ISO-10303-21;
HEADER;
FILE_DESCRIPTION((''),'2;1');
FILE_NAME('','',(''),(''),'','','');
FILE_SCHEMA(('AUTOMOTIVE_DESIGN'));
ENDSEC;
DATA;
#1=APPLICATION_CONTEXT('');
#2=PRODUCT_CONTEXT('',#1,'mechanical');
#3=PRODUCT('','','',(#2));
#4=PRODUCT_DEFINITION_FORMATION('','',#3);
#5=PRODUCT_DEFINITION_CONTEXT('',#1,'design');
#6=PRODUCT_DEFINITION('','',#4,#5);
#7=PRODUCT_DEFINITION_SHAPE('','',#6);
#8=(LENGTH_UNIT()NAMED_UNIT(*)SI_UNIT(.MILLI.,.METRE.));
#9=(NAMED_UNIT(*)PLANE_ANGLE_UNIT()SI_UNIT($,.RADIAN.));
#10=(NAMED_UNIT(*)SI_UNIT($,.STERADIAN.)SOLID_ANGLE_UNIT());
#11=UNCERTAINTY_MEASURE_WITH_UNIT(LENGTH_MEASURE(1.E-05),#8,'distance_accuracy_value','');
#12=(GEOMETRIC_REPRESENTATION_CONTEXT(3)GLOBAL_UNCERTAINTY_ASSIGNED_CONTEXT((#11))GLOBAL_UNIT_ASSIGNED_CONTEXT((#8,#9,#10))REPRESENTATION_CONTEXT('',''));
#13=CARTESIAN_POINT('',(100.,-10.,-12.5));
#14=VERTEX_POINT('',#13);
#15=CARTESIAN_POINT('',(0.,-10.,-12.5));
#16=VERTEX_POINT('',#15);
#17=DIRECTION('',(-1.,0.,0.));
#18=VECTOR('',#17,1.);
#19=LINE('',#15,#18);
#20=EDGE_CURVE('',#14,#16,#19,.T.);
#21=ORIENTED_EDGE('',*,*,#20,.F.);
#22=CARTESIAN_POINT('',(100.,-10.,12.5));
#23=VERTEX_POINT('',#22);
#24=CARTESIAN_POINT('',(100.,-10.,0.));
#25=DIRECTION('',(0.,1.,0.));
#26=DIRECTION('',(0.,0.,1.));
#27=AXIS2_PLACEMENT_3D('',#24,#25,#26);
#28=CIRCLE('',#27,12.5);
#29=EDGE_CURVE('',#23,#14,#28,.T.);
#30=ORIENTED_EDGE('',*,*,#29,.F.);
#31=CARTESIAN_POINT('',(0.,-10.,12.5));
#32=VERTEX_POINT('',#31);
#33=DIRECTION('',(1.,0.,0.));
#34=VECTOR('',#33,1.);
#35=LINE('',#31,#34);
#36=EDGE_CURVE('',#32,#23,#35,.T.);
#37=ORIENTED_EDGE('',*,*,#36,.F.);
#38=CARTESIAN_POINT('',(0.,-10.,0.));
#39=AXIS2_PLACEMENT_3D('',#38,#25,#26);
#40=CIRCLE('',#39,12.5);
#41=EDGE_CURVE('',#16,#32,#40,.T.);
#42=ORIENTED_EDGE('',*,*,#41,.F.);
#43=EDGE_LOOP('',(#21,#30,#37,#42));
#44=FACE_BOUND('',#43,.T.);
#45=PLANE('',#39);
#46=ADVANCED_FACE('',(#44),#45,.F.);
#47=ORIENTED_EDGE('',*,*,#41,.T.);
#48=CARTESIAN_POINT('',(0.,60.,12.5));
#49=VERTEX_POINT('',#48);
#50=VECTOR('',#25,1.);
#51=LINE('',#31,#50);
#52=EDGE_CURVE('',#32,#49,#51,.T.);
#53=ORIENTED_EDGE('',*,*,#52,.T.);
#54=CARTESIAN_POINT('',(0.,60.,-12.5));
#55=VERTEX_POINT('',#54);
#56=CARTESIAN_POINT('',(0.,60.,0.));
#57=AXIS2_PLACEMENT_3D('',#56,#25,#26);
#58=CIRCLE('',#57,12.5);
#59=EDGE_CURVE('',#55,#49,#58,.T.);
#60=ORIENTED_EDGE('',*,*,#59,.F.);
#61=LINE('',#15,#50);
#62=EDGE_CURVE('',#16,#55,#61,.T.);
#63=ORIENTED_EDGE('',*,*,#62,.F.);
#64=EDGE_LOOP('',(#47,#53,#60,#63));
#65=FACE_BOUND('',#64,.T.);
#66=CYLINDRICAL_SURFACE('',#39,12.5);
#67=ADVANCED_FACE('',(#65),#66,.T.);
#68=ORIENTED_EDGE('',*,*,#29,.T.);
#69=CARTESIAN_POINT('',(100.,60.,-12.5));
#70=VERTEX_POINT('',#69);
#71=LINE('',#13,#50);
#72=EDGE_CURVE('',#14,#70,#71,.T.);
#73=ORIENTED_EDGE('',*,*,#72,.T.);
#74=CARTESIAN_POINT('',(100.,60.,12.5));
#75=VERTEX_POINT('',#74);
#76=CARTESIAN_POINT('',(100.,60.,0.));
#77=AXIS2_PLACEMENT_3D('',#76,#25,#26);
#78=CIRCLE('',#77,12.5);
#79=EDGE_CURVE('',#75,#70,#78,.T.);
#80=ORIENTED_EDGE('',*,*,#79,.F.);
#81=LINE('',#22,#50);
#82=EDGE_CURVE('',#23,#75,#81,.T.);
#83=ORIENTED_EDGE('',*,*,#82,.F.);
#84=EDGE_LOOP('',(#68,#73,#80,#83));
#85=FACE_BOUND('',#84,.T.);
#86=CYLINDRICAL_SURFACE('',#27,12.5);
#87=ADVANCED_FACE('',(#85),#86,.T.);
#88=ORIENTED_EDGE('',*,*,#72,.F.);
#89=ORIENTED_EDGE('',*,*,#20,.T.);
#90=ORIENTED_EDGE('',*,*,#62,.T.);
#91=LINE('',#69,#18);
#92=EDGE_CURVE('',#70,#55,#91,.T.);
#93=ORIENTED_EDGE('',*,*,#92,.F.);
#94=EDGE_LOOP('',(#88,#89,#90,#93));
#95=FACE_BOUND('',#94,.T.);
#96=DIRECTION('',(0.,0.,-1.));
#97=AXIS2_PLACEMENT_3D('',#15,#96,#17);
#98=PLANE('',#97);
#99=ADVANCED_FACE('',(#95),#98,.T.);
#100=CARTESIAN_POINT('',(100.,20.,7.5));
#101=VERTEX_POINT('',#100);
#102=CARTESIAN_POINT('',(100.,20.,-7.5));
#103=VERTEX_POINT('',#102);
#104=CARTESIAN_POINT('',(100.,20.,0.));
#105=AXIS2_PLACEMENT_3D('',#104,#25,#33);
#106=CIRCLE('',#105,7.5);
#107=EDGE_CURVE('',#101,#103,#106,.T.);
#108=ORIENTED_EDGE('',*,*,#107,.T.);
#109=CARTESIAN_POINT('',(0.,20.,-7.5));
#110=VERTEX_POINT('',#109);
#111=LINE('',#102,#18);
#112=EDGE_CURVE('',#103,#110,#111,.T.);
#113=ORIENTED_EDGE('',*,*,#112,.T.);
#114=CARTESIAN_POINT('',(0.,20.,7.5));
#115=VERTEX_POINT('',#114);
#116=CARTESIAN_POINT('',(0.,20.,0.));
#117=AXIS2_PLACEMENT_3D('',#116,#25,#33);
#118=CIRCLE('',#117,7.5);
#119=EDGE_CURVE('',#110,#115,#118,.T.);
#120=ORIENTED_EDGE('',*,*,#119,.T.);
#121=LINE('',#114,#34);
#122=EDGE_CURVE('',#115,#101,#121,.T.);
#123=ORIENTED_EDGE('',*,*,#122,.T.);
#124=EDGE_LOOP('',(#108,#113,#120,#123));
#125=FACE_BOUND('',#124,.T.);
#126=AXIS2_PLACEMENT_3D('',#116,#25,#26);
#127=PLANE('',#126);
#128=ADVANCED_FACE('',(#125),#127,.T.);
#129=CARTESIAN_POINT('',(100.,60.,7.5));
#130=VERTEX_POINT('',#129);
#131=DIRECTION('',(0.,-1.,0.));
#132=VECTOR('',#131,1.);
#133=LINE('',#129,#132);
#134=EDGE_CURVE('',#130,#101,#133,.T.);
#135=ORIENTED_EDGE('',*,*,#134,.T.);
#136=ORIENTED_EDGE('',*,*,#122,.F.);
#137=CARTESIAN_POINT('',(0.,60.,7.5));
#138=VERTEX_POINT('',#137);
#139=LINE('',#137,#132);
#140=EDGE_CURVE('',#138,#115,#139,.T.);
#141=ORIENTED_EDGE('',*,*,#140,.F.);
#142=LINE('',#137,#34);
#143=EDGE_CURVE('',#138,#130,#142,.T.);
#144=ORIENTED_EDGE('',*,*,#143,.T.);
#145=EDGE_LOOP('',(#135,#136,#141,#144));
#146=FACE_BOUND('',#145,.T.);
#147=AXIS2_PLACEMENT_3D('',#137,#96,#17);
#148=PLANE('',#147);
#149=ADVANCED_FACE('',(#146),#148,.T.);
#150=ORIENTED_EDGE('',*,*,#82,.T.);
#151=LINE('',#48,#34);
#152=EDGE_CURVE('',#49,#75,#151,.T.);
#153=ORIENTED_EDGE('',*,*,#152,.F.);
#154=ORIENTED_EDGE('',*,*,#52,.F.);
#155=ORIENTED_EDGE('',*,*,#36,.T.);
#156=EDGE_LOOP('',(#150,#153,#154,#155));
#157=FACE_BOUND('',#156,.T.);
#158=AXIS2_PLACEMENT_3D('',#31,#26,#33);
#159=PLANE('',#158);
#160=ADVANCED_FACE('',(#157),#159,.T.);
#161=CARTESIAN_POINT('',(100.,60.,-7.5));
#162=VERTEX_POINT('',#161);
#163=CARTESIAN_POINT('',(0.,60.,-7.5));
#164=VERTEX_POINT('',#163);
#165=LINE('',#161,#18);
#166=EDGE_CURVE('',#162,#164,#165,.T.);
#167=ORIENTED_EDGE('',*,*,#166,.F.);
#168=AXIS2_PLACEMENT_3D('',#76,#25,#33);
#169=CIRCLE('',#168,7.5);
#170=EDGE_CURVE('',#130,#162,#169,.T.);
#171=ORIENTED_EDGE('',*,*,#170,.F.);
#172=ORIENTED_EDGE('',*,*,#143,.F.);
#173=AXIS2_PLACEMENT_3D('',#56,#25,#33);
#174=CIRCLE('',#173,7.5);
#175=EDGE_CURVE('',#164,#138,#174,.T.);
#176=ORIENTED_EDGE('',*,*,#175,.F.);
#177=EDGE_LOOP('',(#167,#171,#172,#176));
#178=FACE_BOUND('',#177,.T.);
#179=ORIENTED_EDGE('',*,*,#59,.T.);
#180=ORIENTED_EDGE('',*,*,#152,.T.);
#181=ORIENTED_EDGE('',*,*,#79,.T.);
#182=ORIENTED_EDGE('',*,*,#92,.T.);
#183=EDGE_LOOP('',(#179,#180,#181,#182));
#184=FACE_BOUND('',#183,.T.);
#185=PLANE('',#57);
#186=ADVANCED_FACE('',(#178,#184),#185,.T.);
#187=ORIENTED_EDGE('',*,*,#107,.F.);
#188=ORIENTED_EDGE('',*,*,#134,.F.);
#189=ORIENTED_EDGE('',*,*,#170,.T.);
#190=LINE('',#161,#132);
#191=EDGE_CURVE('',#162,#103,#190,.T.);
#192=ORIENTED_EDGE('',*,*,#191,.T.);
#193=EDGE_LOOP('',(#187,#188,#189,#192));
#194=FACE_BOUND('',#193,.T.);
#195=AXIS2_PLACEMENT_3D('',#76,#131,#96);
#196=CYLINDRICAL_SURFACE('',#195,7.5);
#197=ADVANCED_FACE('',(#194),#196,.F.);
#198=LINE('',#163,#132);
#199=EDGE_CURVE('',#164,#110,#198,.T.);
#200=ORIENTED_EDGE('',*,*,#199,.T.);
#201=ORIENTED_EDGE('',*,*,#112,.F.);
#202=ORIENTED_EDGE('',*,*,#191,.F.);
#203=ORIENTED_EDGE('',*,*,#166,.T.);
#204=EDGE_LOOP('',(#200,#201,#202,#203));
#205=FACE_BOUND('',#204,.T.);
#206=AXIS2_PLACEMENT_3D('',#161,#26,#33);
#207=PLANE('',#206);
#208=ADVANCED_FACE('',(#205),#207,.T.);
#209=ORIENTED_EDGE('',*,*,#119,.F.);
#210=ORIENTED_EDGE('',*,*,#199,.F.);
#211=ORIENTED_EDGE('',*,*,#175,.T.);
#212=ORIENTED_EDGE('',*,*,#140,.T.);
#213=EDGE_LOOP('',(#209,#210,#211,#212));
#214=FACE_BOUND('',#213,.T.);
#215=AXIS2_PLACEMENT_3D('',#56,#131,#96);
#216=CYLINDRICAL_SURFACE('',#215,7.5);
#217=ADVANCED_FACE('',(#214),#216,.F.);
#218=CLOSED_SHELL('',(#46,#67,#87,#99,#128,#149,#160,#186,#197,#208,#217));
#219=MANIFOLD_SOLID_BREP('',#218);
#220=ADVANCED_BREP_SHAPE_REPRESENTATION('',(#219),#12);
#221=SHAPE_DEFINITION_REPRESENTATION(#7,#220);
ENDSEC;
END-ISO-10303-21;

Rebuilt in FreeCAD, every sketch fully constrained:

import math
import FreeCAD as App
import Part
import Sketcher

V = App.Vector

doc = App.newDocument("Part")
body = doc.addObject("PartDesign::Body", "Body")

# Sketch on XZ plane
sketch1 = doc.addObject("Sketcher::SketchObject", "Sketch")
body.addObject(sketch1)
sketch1.AttachmentSupport = (doc.XZ_Plane, [""])
sketch1.MapMode = "FlatFace"
sketch1.addGeometry(Part.LineSegment(V(100, -12, 0), V(0, -12, 0)), False)
sketch1.addGeometry(Part.ArcOfCircle(Part.Circle(V(0, 0, 0), V(0, 0, 1), 12), math.radians(90), math.radians(270)), False)
sketch1.addGeometry(Part.LineSegment(V(0, 12, 0), V(100, 12, 0)), False)
sketch1.addGeometry(Part.ArcOfCircle(Part.Circle(V(100, 0, 0), V(0, 0, 1), 12), math.radians(-90), math.radians(90)), False)
sketch1.addConstraint(Sketcher.Constraint("Tangent", 0, 2, 1, 2))
sketch1.addConstraint(Sketcher.Constraint("Tangent", 1, 1, 2, 1))
sketch1.addConstraint(Sketcher.Constraint("Tangent", 2, 2, 3, 2))
sketch1.addConstraint(Sketcher.Constraint("Tangent", 3, 1, 0, 1))
sketch1.addConstraint(Sketcher.Constraint("Horizontal", 0))
sketch1.addConstraint(Sketcher.Constraint("Horizontal", 2))
sketch1.addConstraint(Sketcher.Constraint("Coincident", 1, 3, -1, 1))
sketch1.addConstraint(Sketcher.Constraint("Radius", 1, 12.5))
sketch1.addConstraint(Sketcher.Constraint("DistanceX", 0, 2, 0, 1, 100.0))
pad1 = doc.addObject("PartDesign::Pad", "Pad")
body.addObject(pad1)
pad1.Profile = sketch1
pad1.Type = "TwoLengths"
pad1.Length = 20
pad1.Length2 = 10
pad1.Reversed = True

# Sketch on XZ plane
sketch2 = doc.addObject("Sketcher::SketchObject", "Sketch001")
body.addObject(sketch2)
sketch2.AttachmentSupport = (doc.XZ_Plane, [""])
sketch2.MapMode = "FlatFace"
sketch2.AttachmentOffset = App.Placement(V(0, 0, -20), App.Rotation())
sketch2.addGeometry(Part.LineSegment(V(100, -12, 0), V(0, -12, 0)), False)
sketch2.addGeometry(Part.ArcOfCircle(Part.Circle(V(0, 0, 0), V(0, 0, 1), 12), math.radians(90), math.radians(270)), False)
sketch2.addGeometry(Part.LineSegment(V(0, 12, 0), V(100, 12, 0)), False)
sketch2.addGeometry(Part.ArcOfCircle(Part.Circle(V(100, 0, 0), V(0, 0, 1), 12), math.radians(-90), math.radians(90)), False)
sketch2.addGeometry(Part.LineSegment(V(0, -8, 0), V(100, -8, 0)), False)
sketch2.addGeometry(Part.ArcOfCircle(Part.Circle(V(100, 0, 0), V(0, 0, 1), 8), math.radians(-90), math.radians(90)), False)
sketch2.addGeometry(Part.LineSegment(V(100, 8, 0), V(0, 8, 0)), False)
sketch2.addGeometry(Part.ArcOfCircle(Part.Circle(V(0, 0, 0), V(0, 0, 1), 8), math.radians(90), math.radians(270)), False)
sketch2.addConstraint(Sketcher.Constraint("Tangent", 0, 2, 1, 2))
sketch2.addConstraint(Sketcher.Constraint("Tangent", 1, 1, 2, 1))
sketch2.addConstraint(Sketcher.Constraint("Tangent", 2, 2, 3, 2))
sketch2.addConstraint(Sketcher.Constraint("Tangent", 3, 1, 0, 1))
sketch2.addConstraint(Sketcher.Constraint("Tangent", 4, 2, 5, 1))
sketch2.addConstraint(Sketcher.Constraint("Tangent", 5, 2, 6, 1))
sketch2.addConstraint(Sketcher.Constraint("Tangent", 6, 2, 7, 1))
sketch2.addConstraint(Sketcher.Constraint("Tangent", 7, 2, 4, 1))
sketch2.addConstraint(Sketcher.Constraint("Horizontal", 0))
sketch2.addConstraint(Sketcher.Constraint("Horizontal", 2))
sketch2.addConstraint(Sketcher.Constraint("Horizontal", 4))
sketch2.addConstraint(Sketcher.Constraint("Horizontal", 6))
sketch2.addConstraint(Sketcher.Constraint("Coincident", 1, 3, -1, 1))
sketch2.addConstraint(Sketcher.Constraint("Coincident", 7, 3, -1, 1))
sketch2.addConstraint(Sketcher.Constraint("Vertical", 5, 3, 2, 2))
sketch2.addConstraint(Sketcher.Constraint("Radius", 1, 12.5))
sketch2.addConstraint(Sketcher.Constraint("Radius", 5, 7.5))
sketch2.addConstraint(Sketcher.Constraint("DistanceX", 0, 2, 0, 1, 100.0))
pad2 = doc.addObject("PartDesign::Pad", "Pad001")
body.addObject(pad2)
pad2.Profile = sketch2
pad2.Length = 40
pad2.Reversed = True

doc.recompute()
